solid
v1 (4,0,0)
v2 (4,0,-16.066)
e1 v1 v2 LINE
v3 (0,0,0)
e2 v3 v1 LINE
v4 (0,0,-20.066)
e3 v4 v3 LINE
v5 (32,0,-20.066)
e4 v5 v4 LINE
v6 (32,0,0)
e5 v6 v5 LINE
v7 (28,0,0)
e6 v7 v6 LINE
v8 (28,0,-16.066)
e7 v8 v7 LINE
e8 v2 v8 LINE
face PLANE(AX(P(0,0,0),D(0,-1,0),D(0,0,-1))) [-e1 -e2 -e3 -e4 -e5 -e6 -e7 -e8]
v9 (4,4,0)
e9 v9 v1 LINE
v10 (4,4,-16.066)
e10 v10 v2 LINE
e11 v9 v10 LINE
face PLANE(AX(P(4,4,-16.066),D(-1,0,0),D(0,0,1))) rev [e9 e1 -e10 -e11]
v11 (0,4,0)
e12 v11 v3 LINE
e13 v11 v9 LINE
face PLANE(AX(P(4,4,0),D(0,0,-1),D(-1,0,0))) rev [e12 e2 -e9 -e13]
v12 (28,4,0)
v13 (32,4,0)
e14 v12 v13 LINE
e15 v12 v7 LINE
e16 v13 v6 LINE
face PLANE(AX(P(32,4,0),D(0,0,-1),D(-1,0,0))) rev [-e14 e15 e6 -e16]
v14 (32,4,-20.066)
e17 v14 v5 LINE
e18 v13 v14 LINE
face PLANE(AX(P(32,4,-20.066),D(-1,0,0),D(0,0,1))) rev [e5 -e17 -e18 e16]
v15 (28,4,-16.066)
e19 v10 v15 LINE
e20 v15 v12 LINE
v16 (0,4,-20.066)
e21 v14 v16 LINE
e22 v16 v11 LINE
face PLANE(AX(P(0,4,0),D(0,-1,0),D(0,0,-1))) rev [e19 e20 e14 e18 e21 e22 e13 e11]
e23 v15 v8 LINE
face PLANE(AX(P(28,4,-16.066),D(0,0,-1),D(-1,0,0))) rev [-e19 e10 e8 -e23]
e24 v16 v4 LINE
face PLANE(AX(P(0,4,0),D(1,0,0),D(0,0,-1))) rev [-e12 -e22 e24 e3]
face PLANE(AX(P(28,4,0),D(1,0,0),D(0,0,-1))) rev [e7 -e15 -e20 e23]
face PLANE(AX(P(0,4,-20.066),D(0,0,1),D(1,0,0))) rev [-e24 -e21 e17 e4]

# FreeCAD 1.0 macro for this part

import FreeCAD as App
import Part
import Sketcher
from FreeCAD import Vector


def add_polygon(sketch, points):
    """Adds a closed chain of lines whose ends are joined by coincident constraints."""
    first, n = sketch.GeometryCount, len(points)
    for a, b in zip(points, points[1:] + points[:1]):
        sketch.addGeometry(Part.LineSegment(App.Vector(*a, 0), App.Vector(*b, 0)), False)
    for i in range(n):
        sketch.addConstraint(Sketcher.Constraint("Coincident", first + i, 2, first + (i + 1) % n, 1))

doc = App.newDocument("Part")
params = doc.addObject("Spreadsheet::Sheet", "Params")
for row, (alias, value) in enumerate([
    ("sketch1_width", "4 mm"),
    ("sketch1_width2", "24 mm"),
    ("pad1_length", "4 mm"),
], start=1):
    params.set(f"A{row}", alias)
    params.set(f"B{row}", "=" + value)
    params.setAlias(f"B{row}", alias)

body = doc.addObject("PartDesign::Body", "Body")

sketch1 = body.newObject("Sketcher::SketchObject", "Sketch")
sketch1.AttachmentSupport = (doc.getObject("XZ_Plane"), [""])
sketch1.MapMode = "FlatFace"
add_polygon(sketch1, [(0, -20.066), (0, 0), (4, 0), (4, -16.066), (28, -16.066), (28, 0), (32, 0), (32, -20.066)])
sketch1.addConstraint(Sketcher.Constraint("Vertical", 0))
sketch1.addConstraint(Sketcher.Constraint("Horizontal", 1))
sketch1.addConstraint(Sketcher.Constraint("Vertical", 2))
sketch1.addConstraint(Sketcher.Constraint("Horizontal", 3))
sketch1.addConstraint(Sketcher.Constraint("Vertical", 4))
sketch1.addConstraint(Sketcher.Constraint("Horizontal", 5))
sketch1.addConstraint(Sketcher.Constraint("Vertical", 6))
sketch1.addConstraint(Sketcher.Constraint("Horizontal", 7))
sketch1.addConstraint(Sketcher.Constraint("Coincident", 0, 2, -1, 1))
sketch1.addConstraint(Sketcher.Constraint("PointOnObject", 4, 2, -1))
sketch1.addConstraint(Sketcher.Constraint("Equal", 1, 5))
sketch1.addConstraint(Sketcher.Constraint("DistanceX", 1, 1, 1, 2, 4.0))
sketch1.addConstraint(Sketcher.Constraint("DistanceX", 3, 1, 3, 2, 24.0))
sketch1.addConstraint(Sketcher.Constraint("DistanceY", 6, 2, 3, 2, 4.0))
sketch1.addConstraint(Sketcher.Constraint("DistanceY", 0, 1, 0, 2, 20.066))
sketch1.setExpression("Constraints[19]", "Params.sketch1_width")
sketch1.setExpression("Constraints[20]", "Params.sketch1_width2")
pad1 = body.newObject("PartDesign::Pad", "Pad")
pad1.Profile = sketch1
pad1.setExpression("Length", "Params.pad1_length")
pad1.Reversed = True

doc.recompute()
